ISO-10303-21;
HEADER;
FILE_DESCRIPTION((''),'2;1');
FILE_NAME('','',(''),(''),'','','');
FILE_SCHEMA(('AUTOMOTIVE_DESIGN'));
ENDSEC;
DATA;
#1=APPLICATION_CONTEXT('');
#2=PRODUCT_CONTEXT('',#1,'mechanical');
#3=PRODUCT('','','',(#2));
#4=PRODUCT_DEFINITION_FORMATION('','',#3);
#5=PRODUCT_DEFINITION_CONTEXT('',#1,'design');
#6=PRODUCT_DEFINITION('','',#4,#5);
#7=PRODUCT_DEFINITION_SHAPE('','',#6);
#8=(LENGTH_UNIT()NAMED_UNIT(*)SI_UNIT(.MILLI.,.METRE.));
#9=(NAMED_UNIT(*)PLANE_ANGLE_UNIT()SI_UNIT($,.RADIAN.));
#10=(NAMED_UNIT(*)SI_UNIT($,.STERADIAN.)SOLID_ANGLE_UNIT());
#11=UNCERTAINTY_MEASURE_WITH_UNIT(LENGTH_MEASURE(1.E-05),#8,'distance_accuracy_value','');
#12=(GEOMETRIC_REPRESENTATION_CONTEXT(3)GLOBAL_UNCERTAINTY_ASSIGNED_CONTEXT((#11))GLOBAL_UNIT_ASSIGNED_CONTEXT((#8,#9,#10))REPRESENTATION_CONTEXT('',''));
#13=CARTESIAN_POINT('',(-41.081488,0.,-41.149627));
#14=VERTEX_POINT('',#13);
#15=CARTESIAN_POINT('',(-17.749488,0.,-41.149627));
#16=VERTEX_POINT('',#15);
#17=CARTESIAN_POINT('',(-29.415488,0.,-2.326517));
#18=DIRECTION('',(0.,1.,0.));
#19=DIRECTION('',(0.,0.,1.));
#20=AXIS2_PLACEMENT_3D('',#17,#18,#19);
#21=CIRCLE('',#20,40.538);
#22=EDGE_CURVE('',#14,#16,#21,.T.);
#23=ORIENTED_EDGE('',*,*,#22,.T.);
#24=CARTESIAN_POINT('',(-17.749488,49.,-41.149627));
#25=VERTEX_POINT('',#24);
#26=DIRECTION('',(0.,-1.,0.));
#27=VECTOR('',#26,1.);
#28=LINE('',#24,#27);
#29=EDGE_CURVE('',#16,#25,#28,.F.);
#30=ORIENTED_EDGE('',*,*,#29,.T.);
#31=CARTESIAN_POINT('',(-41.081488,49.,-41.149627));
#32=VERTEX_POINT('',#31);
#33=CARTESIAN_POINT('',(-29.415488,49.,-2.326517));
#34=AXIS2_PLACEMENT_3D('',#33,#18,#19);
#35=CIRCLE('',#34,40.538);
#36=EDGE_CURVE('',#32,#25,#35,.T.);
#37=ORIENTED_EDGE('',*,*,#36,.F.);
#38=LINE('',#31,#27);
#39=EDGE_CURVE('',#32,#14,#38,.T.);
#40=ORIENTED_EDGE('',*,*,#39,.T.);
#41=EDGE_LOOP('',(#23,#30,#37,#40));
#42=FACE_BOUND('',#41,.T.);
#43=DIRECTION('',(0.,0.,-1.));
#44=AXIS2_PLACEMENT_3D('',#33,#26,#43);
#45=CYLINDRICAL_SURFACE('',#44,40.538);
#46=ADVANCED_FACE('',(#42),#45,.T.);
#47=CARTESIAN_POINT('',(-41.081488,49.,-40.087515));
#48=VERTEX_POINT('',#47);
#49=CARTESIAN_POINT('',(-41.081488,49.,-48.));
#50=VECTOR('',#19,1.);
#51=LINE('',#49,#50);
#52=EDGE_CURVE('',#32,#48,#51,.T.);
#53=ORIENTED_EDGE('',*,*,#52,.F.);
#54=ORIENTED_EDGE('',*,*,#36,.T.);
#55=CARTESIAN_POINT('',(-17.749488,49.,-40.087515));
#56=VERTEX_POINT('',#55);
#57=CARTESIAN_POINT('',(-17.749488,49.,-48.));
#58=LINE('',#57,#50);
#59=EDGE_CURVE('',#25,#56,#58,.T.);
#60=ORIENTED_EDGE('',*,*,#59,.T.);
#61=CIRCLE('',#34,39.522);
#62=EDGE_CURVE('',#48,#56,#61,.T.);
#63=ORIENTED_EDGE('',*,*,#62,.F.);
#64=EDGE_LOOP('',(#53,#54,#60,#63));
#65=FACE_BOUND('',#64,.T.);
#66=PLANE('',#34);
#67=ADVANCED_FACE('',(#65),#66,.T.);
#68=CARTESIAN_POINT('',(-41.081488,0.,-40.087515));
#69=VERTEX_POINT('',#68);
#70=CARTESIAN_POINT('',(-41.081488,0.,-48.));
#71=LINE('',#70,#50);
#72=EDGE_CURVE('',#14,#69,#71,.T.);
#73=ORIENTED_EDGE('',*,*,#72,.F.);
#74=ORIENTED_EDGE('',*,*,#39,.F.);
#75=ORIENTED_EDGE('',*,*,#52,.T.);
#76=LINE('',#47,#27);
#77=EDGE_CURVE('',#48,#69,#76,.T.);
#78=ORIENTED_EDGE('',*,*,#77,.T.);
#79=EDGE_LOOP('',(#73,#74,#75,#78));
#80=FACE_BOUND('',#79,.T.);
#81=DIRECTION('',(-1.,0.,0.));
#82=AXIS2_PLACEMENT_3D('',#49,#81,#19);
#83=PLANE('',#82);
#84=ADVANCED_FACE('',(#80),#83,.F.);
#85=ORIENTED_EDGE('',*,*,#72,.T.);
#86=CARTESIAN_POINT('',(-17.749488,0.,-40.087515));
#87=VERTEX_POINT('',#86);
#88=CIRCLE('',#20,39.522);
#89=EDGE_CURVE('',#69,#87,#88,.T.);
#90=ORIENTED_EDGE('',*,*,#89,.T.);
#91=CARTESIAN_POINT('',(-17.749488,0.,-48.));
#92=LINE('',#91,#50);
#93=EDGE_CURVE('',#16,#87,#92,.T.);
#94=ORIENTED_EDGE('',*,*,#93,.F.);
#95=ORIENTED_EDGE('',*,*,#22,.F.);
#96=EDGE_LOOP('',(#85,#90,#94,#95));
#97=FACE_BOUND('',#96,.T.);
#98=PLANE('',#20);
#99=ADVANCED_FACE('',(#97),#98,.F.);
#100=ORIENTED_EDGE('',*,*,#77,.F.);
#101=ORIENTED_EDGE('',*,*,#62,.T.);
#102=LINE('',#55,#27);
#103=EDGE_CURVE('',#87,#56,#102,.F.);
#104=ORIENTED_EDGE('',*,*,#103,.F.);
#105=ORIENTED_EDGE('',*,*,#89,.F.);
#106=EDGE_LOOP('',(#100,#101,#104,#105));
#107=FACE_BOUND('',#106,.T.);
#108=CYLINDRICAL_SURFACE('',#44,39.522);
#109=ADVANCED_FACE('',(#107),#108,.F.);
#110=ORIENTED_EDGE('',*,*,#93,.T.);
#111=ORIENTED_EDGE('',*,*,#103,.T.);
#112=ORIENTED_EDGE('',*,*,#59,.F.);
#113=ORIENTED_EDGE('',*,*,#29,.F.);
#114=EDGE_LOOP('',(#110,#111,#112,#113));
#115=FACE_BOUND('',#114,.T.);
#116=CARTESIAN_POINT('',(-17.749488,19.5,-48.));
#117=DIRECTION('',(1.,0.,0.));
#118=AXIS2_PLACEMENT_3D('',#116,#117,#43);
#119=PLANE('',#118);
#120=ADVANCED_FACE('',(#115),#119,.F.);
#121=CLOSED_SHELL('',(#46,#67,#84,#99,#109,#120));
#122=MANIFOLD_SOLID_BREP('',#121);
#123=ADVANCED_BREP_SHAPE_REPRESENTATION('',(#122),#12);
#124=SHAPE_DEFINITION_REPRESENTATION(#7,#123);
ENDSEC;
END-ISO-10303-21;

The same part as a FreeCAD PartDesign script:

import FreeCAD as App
import Part
import Sketcher
from FreeCAD import Vector
Q = App.Units.Quantity


def add_polygon(sketch, points):
    """Adds a closed chain of lines whose ends are joined by coincident constraints."""
    first, n = sketch.GeometryCount, len(points)
    for a, b in zip(points, points[1:] + points[:1]):
        sketch.addGeometry(Part.LineSegment(App.Vector(*a, 0), App.Vector(*b, 0)), False)
    for i in range(n):
        sketch.addConstraint(Sketcher.Constraint("Coincident", first + i, 2, first + (i + 1) % n, 1))

doc = App.newDocument("Part")
body = doc.addObject("PartDesign::Body", "Body")

# Sketch on XZ plane
sketch1 = body.newObject("Sketcher::SketchObject", "Sketch")
sketch1.AttachmentSupport = (doc.getObject("XZ_Plane"), [""])
sketch1.MapMode = "FlatFace"
sketch1.addGeometry(Part.Circle(Vector(-29.415489, -2.326517, 0), Vector(0, 0, 1), 40.538), False)
sketch1.addGeometry(Part.Circle(Vector(-29.415489, -2.326517, 0), Vector(0, 0, 1), 39.522), False)
sketch1.addConstraint(Sketcher.Constraint("Coincident", 1, 3, 0, 3))
sketch1.addConstraint(Sketcher.Constraint("Diameter", 0, Q("81.076 mm")))
sketch1.addConstraint(Sketcher.Constraint("Diameter", 1, Q("79.044 mm")))
sketch1.addConstraint(Sketcher.Constraint("DistanceX", 0, 3, -1, 1, Q("29.415489 mm")))
sketch1.addConstraint(Sketcher.Constraint("DistanceY", 0, 3, -1, 1, Q("2.326517 mm")))
pad1 = body.newObject("PartDesign::Pad", "Pad")
pad1.Profile = sketch1
pad1.Length = 49
pad1.Reversed = True

# Sketch on XY plane
sketch2 = body.newObject("Sketcher::SketchObject", "Sketch001")
sketch2.AttachmentSupport = (doc.getObject("XY_Plane"), [""])
sketch2.MapMode = "FlatFace"
add_polygon(sketch2, [(-17.749488, 49), (-41.081488, 49), (-41.081488, 0), (-17.749488, 0)])  # lines 0-3
sketch2.addConstraint(Sketcher.Constraint("Horizontal", 0))
sketch2.addConstraint(Sketcher.Constraint("Vertical", 1))
sketch2.addConstraint(Sketcher.Constraint("Horizontal", 2))
sketch2.addConstraint(Sketcher.Constraint("Vertical", 3))
sketch2.addConstraint(Sketcher.Constraint("PointOnObject", 1, 2, -1))
sketch2.addConstraint(Sketcher.Constraint("DistanceY", 1, 2, 1, 1, Q("49 mm")))
sketch2.addConstraint(Sketcher.Constraint("DistanceX", 0, 2, 0, 1, Q("23.332 mm")))
sketch2.addConstraint(Sketcher.Constraint("DistanceX", 0, 2, -1, 1, Q("41.081488 mm")))
pocket1 = body.newObject("PartDesign::Pocket", "Pocket")
pocket1.Profile = sketch2
pocket1.Length = 48

doc.recompute()
